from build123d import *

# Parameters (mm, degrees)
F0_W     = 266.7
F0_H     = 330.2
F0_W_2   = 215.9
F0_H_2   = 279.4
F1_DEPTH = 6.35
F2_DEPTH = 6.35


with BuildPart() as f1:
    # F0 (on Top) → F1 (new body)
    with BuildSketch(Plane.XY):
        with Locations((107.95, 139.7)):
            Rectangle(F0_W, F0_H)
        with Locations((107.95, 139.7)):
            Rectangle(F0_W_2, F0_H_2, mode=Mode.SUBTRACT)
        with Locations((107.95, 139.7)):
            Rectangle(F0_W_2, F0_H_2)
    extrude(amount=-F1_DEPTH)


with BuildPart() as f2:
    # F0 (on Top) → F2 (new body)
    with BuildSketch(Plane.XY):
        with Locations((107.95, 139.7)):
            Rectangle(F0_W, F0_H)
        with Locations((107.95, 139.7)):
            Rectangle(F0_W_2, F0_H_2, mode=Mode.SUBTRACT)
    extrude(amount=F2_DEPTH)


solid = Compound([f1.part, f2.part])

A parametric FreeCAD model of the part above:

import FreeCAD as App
import Part
import Sketcher

V = App.Vector
Q = App.Units.Quantity

doc = App.newDocument("Part")
params = doc.addObject("Spreadsheet::Sheet", "Params")
for row, (alias, value) in enumerate([
    ("sketch1_height", "13 in"),
    ("sketch1_width", "10.5 in"),
    ("pad1_length", "0.25 in"),
    ("sketch2_height", "13 in"),
    ("sketch2_height2", "11 in"),
    ("sketch2_width", "10.5 in"),
    ("sketch2_width2", "8.5 in"),
    ("pad2_length", "0.25 in"),
], start=1):
    params.set(f"A{row}", alias)
    params.set(f"B{row}", "=" + value)
    params.setAlias(f"B{row}", alias)

body = doc.addObject("PartDesign::Body", "Body")

sketch1 = body.newObject("Sketcher::SketchObject", "Sketch")
sketch1.AttachmentSupport = (doc.getObject("XY_Plane"), [""])
sketch1.MapMode = "FlatFace"
sketch1.addGeometry([
    Part.LineSegment(V(-25, 305, 0), V(-25, -25, 0)),
    Part.LineSegment(V(-25, -25, 0), V(241, -25, 0)),
    Part.LineSegment(V(241, -25, 0), V(241, 305, 0)),
    Part.LineSegment(V(241, 305, 0), V(-25, 305, 0)),
], False)
sketch1.addConstraint([
    Sketcher.Constraint("Coincident", 0, 2, 1, 1),
    Sketcher.Constraint("Coincident", 1, 2, 2, 1),
    Sketcher.Constraint("Coincident", 2, 2, 3, 1),
    Sketcher.Constraint("Coincident", 3, 2, 0, 1),
    Sketcher.Constraint("Vertical", 0),
    Sketcher.Constraint("Horizontal", 1),
    Sketcher.Constraint("Vertical", 2),
    Sketcher.Constraint("Horizontal", 3),
    Sketcher.Constraint("DistanceY", 0, 2, 0, 1, Q("13 in")),
    Sketcher.Constraint("DistanceX", 1, 1, 1, 2, Q("10.5 in")),
    Sketcher.Constraint("DistanceX", 0, 2, -1, 1, Q("1 in")),
    Sketcher.Constraint("DistanceY", 0, 2, -1, 1, Q("1 in")),
])
sketch1.setExpression("Constraints[8]", "Params.sketch1_height")
sketch1.setExpression("Constraints[9]", "Params.sketch1_width")
pad1 = body.newObject("PartDesign::Pad", "Pad")
pad1.Profile = sketch1
pad1.setExpression("Length", "Params.pad1_length")
pad1.Reversed = True
body2 = doc.addObject("PartDesign::Body", "Body001")

sketch2 = body2.newObject("Sketcher::SketchObject", "Sketch001")
sketch2.AttachmentSupport = (doc.getObject("XY_Plane001"), [""])
sketch2.MapMode = "FlatFace"
sketch2.addGeometry([
    Part.LineSegment(V(-25, 305, 0), V(-25, -25, 0)),
    Part.LineSegment(V(-25, -25, 0), V(241, -25, 0)),
    Part.LineSegment(V(241, -25, 0), V(241, 305, 0)),
    Part.LineSegment(V(241, 305, 0), V(-25, 305, 0)),
    Part.LineSegment(V(216, 0, 0), V(0, 0, 0)),
    Part.LineSegment(V(0, 0, 0), V(0, 279, 0)),
    Part.LineSegment(V(0, 279, 0), V(216, 279, 0)),
    Part.LineSegment(V(216, 279, 0), V(216, 0, 0)),
], False)
sketch2.addConstraint([
    Sketcher.Constraint("Coincident", 0, 2, 1, 1),
    Sketcher.Constraint("Coincident", 1, 2, 2, 1),
    Sketcher.Constraint("Coincident", 2, 2, 3, 1),
    Sketcher.Constraint("Coincident", 3, 2, 0, 1),
    Sketcher.Constraint("Coincident", 4, 2, 5, 1),
    Sketcher.Constraint("Coincident", 5, 2, 6, 1),
    Sketcher.Constraint("Coincident", 6, 2, 7, 1),
    Sketcher.Constraint("Coincident", 7, 2, 4, 1),
    Sketcher.Constraint("Vertical", 0),
    Sketcher.Constraint("Horizontal", 1),
    Sketcher.Constraint("Vertical", 2),
    Sketcher.Constraint("Horizontal", 3),
    Sketcher.Constraint("Horizontal", 4),
    Sketcher.Constraint("Vertical", 5),
    Sketcher.Constraint("Horizontal", 6),
    Sketcher.Constraint("Vertical", 7),
    Sketcher.Constraint("Coincident", 4, 2, -1, 1),
    Sketcher.Constraint("DistanceY", 0, 2, 0, 1, Q("13 in")),
    Sketcher.Constraint("DistanceY", 5, 1, 5, 2, Q("11 in")),
    Sketcher.Constraint("DistanceX", 1, 1, 1, 2, Q("10.5 in")),
    Sketcher.Constraint("DistanceX", 4, 2, 4, 1, Q("8.5 in")),
    Sketcher.Constraint("DistanceX", 0, 2, -1, 1, Q("1 in")),
    Sketcher.Constraint("DistanceY", 0, 2, -1, 1, Q("1 in")),
])
sketch2.setExpression("Constraints[17]", "Params.sketch2_height")
sketch2.setExpression("Constraints[18]", "Params.sketch2_height2")
sketch2.setExpression("Constraints[19]", "Params.sketch2_width")
sketch2.setExpression("Constraints[20]", "Params.sketch2_width2")
pad2 = body2.newObject("PartDesign::Pad", "Pad001")
pad2.Profile = sketch2
pad2.setExpression("Length", "Params.pad2_length")

doc.recompute()
